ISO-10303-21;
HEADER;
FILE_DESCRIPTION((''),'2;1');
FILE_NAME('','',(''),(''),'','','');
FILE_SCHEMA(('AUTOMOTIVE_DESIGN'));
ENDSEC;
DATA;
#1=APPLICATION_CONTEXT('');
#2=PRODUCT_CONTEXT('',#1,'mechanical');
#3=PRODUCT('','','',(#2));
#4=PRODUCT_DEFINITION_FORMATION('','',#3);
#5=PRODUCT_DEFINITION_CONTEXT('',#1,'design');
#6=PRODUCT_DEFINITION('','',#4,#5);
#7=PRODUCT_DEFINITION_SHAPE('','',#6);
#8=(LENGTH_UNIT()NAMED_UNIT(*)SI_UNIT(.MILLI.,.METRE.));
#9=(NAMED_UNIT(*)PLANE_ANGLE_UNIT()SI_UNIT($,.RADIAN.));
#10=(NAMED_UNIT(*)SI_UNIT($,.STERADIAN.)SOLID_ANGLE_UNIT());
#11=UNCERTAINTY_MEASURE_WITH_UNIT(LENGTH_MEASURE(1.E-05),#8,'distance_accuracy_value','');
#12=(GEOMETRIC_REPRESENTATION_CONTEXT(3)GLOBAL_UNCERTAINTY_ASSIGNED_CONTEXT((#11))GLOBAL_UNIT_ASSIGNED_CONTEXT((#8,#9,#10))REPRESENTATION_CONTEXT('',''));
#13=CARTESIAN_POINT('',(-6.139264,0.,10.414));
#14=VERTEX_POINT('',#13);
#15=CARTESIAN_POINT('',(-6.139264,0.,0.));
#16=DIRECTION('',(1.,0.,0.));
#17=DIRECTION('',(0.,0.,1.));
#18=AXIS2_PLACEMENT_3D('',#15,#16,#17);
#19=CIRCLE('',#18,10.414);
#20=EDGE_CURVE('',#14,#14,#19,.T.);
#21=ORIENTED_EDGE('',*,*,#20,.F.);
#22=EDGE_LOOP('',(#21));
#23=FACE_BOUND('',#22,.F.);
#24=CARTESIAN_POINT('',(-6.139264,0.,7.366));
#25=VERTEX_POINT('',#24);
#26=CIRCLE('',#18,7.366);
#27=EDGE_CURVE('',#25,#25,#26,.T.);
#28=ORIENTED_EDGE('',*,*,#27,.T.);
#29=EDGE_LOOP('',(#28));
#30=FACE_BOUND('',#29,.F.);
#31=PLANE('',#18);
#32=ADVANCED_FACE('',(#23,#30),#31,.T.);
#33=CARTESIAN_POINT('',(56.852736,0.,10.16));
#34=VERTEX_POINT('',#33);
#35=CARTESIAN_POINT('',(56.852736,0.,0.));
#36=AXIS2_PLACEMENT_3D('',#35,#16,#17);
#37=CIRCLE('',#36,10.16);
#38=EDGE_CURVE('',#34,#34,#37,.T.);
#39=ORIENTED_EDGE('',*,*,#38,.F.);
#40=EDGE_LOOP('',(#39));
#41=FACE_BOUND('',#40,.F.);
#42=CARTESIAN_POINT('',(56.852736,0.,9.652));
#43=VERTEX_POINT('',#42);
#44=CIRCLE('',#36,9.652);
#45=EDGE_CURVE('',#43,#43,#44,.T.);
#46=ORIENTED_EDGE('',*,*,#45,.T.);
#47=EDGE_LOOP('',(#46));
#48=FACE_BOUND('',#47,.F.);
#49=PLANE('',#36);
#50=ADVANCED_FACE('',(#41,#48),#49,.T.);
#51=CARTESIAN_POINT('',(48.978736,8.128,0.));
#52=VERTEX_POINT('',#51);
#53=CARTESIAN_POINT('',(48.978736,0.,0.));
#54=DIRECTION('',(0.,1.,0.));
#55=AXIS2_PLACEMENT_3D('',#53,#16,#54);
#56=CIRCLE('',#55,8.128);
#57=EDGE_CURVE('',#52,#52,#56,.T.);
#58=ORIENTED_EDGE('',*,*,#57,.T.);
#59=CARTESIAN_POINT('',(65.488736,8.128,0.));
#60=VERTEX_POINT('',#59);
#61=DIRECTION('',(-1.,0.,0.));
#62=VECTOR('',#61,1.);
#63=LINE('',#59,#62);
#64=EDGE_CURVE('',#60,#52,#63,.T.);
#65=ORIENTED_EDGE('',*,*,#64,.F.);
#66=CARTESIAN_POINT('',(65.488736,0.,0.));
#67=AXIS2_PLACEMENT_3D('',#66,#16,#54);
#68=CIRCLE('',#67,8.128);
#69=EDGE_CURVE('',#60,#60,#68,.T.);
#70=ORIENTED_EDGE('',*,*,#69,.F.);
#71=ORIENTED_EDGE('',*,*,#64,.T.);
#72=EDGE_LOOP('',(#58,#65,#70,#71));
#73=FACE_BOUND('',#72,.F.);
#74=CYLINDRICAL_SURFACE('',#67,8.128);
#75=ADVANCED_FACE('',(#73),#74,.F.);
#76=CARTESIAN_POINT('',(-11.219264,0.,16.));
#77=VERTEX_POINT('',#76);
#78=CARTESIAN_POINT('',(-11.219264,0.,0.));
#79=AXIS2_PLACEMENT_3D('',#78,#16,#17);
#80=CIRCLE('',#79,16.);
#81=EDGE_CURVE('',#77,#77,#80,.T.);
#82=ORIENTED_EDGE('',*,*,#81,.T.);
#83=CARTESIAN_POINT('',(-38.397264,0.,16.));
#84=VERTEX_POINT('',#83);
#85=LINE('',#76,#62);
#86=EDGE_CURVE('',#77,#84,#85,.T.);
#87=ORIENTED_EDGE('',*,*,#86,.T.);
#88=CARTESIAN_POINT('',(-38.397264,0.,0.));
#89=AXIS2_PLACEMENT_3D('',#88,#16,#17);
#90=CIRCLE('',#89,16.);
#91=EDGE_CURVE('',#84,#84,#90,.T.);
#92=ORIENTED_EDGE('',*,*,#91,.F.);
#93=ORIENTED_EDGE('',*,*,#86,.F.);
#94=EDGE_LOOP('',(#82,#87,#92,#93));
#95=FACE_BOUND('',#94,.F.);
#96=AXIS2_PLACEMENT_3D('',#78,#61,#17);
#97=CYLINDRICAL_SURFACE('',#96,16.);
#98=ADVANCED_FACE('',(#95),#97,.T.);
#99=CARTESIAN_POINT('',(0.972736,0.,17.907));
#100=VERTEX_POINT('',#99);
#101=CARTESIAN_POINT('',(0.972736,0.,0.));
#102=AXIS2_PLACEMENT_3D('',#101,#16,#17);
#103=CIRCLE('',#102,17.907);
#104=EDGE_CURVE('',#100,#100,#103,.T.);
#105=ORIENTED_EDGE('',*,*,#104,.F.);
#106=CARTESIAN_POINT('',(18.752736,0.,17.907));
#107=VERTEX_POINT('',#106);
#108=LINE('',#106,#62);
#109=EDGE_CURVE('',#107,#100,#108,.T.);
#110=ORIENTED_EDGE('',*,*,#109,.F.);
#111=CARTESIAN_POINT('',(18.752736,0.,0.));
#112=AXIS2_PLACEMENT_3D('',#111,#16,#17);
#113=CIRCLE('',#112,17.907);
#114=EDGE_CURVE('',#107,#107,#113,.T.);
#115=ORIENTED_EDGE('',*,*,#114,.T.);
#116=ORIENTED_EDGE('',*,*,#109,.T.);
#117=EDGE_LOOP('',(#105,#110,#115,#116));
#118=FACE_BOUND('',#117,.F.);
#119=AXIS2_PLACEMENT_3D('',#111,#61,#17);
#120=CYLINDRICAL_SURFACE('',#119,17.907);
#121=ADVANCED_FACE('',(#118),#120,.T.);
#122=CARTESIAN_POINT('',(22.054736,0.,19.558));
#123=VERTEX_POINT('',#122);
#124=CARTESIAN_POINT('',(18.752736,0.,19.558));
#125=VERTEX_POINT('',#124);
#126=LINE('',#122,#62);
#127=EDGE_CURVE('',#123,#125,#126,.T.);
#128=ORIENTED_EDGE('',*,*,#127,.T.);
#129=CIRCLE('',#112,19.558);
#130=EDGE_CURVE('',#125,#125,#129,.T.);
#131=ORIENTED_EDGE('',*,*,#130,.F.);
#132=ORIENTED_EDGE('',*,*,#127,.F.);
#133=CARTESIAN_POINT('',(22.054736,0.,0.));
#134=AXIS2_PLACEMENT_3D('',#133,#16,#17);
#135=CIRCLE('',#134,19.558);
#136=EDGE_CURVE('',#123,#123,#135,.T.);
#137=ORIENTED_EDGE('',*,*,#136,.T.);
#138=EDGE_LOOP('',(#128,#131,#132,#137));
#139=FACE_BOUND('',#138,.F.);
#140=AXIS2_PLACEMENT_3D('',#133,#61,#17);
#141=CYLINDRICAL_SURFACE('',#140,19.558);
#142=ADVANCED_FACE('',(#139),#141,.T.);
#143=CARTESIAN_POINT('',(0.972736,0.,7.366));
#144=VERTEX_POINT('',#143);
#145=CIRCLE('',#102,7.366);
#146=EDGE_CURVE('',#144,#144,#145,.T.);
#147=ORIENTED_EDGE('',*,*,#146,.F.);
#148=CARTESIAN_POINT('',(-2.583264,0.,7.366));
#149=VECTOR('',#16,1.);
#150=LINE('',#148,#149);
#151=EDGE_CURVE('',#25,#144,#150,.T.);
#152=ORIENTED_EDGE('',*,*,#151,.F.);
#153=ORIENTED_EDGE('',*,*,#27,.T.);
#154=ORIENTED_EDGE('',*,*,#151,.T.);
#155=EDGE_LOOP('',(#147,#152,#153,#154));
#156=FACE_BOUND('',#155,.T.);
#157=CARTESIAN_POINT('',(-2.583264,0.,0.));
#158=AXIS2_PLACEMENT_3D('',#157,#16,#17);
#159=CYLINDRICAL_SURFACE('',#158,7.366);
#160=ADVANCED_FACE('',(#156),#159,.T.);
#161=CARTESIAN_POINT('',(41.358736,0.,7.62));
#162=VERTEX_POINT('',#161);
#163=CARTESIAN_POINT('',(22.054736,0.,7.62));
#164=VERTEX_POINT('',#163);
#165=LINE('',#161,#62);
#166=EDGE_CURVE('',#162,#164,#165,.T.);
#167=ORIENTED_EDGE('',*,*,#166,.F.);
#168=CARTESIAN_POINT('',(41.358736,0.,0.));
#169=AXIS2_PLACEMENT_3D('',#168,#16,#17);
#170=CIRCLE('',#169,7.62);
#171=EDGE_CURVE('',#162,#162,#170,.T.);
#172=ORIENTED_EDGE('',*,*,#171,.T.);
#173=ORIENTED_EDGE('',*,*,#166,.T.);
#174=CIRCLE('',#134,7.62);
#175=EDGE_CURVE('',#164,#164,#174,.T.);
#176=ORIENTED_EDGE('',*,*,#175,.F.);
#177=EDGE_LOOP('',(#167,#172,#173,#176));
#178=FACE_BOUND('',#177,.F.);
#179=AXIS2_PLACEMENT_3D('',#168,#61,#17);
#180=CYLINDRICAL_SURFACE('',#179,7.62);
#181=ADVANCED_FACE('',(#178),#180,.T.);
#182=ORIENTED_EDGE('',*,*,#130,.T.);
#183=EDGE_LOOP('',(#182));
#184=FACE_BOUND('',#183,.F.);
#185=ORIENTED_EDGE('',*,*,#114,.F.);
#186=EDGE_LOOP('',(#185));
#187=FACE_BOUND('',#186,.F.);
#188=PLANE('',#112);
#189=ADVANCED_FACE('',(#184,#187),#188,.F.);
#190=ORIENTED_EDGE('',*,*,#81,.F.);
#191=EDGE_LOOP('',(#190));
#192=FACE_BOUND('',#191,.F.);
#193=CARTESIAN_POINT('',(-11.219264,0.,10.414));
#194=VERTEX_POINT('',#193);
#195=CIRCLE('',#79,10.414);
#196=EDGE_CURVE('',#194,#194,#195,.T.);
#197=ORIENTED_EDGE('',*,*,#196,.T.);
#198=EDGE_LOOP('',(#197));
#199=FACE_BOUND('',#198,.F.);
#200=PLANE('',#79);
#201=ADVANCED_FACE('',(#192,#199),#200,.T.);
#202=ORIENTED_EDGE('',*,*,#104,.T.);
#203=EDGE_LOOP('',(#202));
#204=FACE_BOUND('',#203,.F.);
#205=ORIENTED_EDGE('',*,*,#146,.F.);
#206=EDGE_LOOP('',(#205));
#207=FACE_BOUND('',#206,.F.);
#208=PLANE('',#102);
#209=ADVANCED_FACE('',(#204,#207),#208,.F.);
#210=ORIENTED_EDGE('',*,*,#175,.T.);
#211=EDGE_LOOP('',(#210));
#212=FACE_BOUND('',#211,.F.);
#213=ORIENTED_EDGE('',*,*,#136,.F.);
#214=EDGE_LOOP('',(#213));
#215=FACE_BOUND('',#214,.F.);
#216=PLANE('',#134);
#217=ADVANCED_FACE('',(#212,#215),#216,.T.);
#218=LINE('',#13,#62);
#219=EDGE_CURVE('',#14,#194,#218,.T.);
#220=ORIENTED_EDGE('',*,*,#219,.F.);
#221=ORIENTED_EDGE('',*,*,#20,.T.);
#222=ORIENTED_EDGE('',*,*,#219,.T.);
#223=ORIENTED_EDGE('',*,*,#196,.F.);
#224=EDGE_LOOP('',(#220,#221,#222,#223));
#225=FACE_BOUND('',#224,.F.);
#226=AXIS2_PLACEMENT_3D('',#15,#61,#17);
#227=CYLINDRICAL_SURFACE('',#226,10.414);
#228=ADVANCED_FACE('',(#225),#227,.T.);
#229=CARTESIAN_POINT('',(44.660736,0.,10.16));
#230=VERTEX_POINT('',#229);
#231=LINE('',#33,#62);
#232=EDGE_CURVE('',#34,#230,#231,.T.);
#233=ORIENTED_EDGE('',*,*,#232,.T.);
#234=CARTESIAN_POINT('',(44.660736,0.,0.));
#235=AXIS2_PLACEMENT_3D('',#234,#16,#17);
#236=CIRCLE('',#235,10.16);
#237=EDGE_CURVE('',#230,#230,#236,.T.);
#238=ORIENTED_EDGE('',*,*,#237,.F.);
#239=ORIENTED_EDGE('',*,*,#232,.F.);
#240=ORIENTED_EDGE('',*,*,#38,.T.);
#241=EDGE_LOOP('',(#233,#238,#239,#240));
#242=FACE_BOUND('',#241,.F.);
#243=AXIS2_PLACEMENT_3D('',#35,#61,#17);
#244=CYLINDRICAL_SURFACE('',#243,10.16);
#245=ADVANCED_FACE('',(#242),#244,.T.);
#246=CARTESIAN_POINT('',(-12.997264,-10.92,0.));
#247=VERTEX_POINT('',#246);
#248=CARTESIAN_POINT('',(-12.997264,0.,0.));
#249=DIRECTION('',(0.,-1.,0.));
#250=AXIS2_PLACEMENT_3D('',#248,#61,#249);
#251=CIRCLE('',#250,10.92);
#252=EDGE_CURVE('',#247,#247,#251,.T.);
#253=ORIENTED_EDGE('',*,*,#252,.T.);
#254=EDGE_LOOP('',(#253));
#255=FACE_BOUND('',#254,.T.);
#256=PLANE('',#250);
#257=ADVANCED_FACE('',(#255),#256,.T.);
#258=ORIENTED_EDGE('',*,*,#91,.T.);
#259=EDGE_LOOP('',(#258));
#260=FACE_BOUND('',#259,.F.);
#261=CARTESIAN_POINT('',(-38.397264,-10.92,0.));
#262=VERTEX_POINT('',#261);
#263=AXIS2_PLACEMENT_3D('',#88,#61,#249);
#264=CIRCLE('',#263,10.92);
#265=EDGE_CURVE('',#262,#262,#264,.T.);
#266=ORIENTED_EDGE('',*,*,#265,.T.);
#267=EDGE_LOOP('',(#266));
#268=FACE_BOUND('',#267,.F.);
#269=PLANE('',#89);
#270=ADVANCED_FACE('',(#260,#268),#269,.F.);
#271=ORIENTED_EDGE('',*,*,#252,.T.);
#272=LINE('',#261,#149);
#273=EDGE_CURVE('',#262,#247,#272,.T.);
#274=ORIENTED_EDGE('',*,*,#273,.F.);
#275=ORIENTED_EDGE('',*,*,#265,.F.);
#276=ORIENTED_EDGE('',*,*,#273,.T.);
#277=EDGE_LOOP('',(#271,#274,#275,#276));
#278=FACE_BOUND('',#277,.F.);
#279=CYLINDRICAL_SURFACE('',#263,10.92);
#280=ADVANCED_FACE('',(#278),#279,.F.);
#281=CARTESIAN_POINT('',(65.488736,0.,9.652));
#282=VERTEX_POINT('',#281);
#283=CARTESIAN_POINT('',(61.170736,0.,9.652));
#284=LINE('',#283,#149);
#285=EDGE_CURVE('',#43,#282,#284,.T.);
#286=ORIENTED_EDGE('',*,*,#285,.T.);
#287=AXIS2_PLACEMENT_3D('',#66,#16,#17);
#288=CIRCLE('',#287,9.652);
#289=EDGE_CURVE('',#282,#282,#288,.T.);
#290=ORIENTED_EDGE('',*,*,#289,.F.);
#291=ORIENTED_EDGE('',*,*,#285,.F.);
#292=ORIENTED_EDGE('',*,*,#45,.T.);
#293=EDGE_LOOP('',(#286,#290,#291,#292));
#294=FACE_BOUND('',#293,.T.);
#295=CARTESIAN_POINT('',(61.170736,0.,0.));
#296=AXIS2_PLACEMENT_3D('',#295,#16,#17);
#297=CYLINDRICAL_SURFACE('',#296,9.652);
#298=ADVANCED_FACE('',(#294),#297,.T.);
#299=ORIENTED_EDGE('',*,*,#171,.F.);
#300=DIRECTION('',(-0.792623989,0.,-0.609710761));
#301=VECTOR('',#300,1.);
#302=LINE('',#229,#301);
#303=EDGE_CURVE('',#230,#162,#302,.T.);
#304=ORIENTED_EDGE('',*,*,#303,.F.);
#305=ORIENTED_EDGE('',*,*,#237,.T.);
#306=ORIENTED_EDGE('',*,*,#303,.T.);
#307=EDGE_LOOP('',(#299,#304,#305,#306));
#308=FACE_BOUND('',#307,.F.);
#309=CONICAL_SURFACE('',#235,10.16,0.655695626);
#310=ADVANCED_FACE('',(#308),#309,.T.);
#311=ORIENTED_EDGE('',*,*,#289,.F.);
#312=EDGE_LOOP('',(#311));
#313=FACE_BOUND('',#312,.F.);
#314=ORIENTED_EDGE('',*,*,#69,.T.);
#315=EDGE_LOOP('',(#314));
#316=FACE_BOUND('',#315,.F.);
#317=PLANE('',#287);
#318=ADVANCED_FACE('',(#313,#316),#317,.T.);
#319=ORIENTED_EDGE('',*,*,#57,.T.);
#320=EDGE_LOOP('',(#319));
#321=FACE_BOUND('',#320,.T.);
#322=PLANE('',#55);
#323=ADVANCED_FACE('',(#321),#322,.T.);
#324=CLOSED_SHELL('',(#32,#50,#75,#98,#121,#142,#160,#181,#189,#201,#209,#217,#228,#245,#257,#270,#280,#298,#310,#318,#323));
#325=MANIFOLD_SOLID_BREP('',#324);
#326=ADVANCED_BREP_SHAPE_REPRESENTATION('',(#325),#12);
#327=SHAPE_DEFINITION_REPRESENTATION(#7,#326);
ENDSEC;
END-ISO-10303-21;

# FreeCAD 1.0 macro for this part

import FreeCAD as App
import Part
import Sketcher
from FreeCAD import Vector
Q = App.Units.Quantity


def add_polygon(sketch, points):
    """Adds a closed chain of lines whose ends are joined by coincident constraints."""
    first, n = sketch.GeometryCount, len(points)
    for a, b in zip(points, points[1:] + points[:1]):
        sketch.addGeometry(Part.LineSegment(App.Vector(*a, 0), App.Vector(*b, 0)), False)
    for i in range(n):
        sketch.addConstraint(Sketcher.Constraint("Coincident", first + i, 2, first + (i + 1) % n, 1))

doc = App.newDocument("Part")
params = doc.addObject("Spreadsheet::Sheet", "Params")
for row, (alias, value) in enumerate([
    ("sketch1_width", "1.07 in"),
    ("revolution_angle", "360 deg"),
    ("sketch2_width", "0.2 in"),
    ("sketch2_height", "0.41 in"),
    ("revolution2_angle", "360 deg"),
    ("sketch3_width", "0.7 in"),
    ("sketch3_width2", "0.13 in"),
    ("sketch3_width3", "0.28 in"),
    ("sketch3_width4", "2.82 in"),
    ("sketch3_width5", "0.34 in"),
    ("revolution3_angle", "360 deg"),
    ("pocket1_length", "1 in"),
    ("sketch5_diameter", "0.64 in"),
    ("pocket2_length", "0.65 in"),
], start=1):
    params.set(f"A{row}", alias)
    params.set(f"B{row}", "=" + value)
    params.setAlias(f"B{row}", alias)

body = doc.addObject("PartDesign::Body", "Body")

# Sketch on XZ plane
sketch1 = body.newObject("Sketcher::SketchObject", "Sketch")
sketch1.AttachmentSupport = (doc.getObject("XZ_Plane"), [""])
sketch1.MapMode = "FlatFace"
add_polygon(sketch1, [(-38.397264, 16), (-38.397264, 0), (-11.219264, 0), (-11.219264, 16)])  # lines 0-3
sketch1.addConstraint(Sketcher.Constraint("Vertical", 0))
sketch1.addConstraint(Sketcher.Constraint("Horizontal", 1))
sketch1.addConstraint(Sketcher.Constraint("Vertical", 2))
sketch1.addConstraint(Sketcher.Constraint("Horizontal", 3))
sketch1.addConstraint(Sketcher.Constraint("PointOnObject", 0, 2, -1))
sketch1.addConstraint(Sketcher.Constraint("DistanceX", 1, 1, 1, 2, Q("1.07 in")))
sketch1.addConstraint(Sketcher.Constraint("DistanceY", 0, 2, 0, 1, Q("16 mm")))
sketch1.addConstraint(Sketcher.Constraint("DistanceX", 0, 2, -1, 1, Q("38.397264 mm")))
sketch1.setExpression("Constraints[9]", "Params.sketch1_width")
revolution = body.newObject("PartDesign::Revolution", "Revolution")
revolution.Profile = sketch1
revolution.ReferenceAxis = (sketch1, ["H_Axis"])
revolution.setExpression("Angle", "Params.revolution_angle")

# Sketch on XZ plane
sketch2 = body.newObject("Sketcher::SketchObject", "Sketch001")
sketch2.AttachmentSupport = (doc.getObject("XZ_Plane"), [""])
sketch2.MapMode = "FlatFace"
add_polygon(sketch2, [(-11.219264, 10.414), (-11.219264, 0), (-6.139264, 0), (-6.139264, 10.414)])  # lines 0-3
sketch2.addConstraint(Sketcher.Constraint("Vertical", 0))
sketch2.addConstraint(Sketcher.Constraint("Horizontal", 1))
sketch2.addConstraint(Sketcher.Constraint("Vertical", 2))
sketch2.addConstraint(Sketcher.Constraint("Horizontal", 3))
sketch2.addConstraint(Sketcher.Constraint("PointOnObject", 0, 2, -1))
sketch2.addConstraint(Sketcher.Constraint("DistanceX", 1, 1, 1, 2, Q("0.2 in")))
sketch2.addConstraint(Sketcher.Constraint("DistanceY", 0, 2, 0, 1, Q("0.41 in")))
sketch2.addConstraint(Sketcher.Constraint("DistanceX", 0, 2, -1, 1, Q("11.219264 mm")))
sketch2.setExpression("Constraints[9]", "Params.sketch2_width")
sketch2.setExpression("Constraints[10]", "Params.sketch2_height")
revolution2 = body.newObject("PartDesign::Revolution", "Revolution001")
revolution2.Profile = sketch2
revolution2.ReferenceAxis = (sketch2, ["H_Axis"])
revolution2.setExpression("Angle", "Params.revolution2_angle")

# Sketch on XZ plane
sketch3 = body.newObject("Sketcher::SketchObject", "Sketch002")
sketch3.AttachmentSupport = (doc.getObject("XZ_Plane"), [""])
sketch3.MapMode = "FlatFace"
add_polygon(sketch3, [(22.054736, 7.62), (22.054736, 19.558), (18.752736, 19.558), (18.752736, 17.907), (0.972736, 17.907), (0.972736, 7.366), (-6.139264, 7.366), (-6.139264, 0), (65.488736, 0), (65.488736, 9.652), (56.852736, 9.652), (56.852736, 10.16), (44.660736, 10.16), (41.358736, 7.62)])  # lines 0-13
sketch3.addConstraint(Sketcher.Constraint("Vertical", 0))
sketch3.addConstraint(Sketcher.Constraint("Horizontal", 1))
sketch3.addConstraint(Sketcher.Constraint("Vertical", 2))
sketch3.addConstraint(Sketcher.Constraint("Horizontal", 3))
sketch3.addConstraint(Sketcher.Constraint("Vertical", 4))
sketch3.addConstraint(Sketcher.Constraint("Horizontal", 5))
sketch3.addConstraint(Sketcher.Constraint("Vertical", 6))
sketch3.addConstraint(Sketcher.Constraint("Horizontal", 7))
sketch3.addConstraint(Sketcher.Constraint("Vertical", 8))
sketch3.addConstraint(Sketcher.Constraint("Horizontal", 9))
sketch3.addConstraint(Sketcher.Constraint("Vertical", 10))
sketch3.addConstraint(Sketcher.Constraint("Horizontal", 11))
sketch3.addConstraint(Sketcher.Constraint("Horizontal", 13))
sketch3.addConstraint(Sketcher.Constraint("PointOnObject", 6, 2, -1))
sketch3.addConstraint(Sketcher.Constraint("DistanceX", 3, 2, 3, 1, Q("0.7 in")))
sketch3.addConstraint(Sketcher.Constraint("DistanceX", 1, 2, 1, 1, Q("0.13 in")))
sketch3.addConstraint(Sketcher.Constraint("DistanceX", 5, 2, 5, 1, Q("0.28 in")))
sketch3.addConstraint(Sketcher.Constraint("DistanceX", 7, 1, 7, 2, Q("2.82 in")))
sketch3.addConstraint(Sketcher.Constraint("DistanceX", 9, 2, 9, 1, Q("0.34 in")))
sketch3.addConstraint(Sketcher.Constraint("DistanceX", 11, 2, 11, 1, Q("0.48 in")))
sketch3.addConstraint(Sketcher.Constraint("DistanceX", 13, 2, 13, 1, Q("0.76 in")))
sketch3.addConstraint(Sketcher.Constraint("DistanceY", 0, 1, 0, 2, Q("0.47 in")))
sketch3.addConstraint(Sketcher.Constraint("DistanceY", 6, 2, 6, 1, Q("0.29 in")))
sketch3.addConstraint(Sketcher.Constraint("DistanceY", 8, 1, 8, 2, Q("0.38 in")))
sketch3.addConstraint(Sketcher.Constraint("DistanceY", 10, 1, 10, 2, Q("0.02 in")))
sketch3.addConstraint(Sketcher.Constraint("DistanceY", -1, 1, 12, 2, Q("0.3 in")))
sketch3.addConstraint(Sketcher.Constraint("DistanceY", 2, 2, 2, 1, Q("0.065 in")))
sketch3.addConstraint(Sketcher.Constraint("DistanceX", -1, 1, 0, 2, Q("22.054736 mm")))
sketch3.setExpression("Constraints[28]", "Params.sketch3_width")
sketch3.setExpression("Constraints[29]", "Params.sketch3_width2")
sketch3.setExpression("Constraints[30]", "Params.sketch3_width3")
sketch3.setExpression("Constraints[31]", "Params.sketch3_width4")
sketch3.setExpression("Constraints[32]", "Params.sketch3_width5")
revolution3 = body.newObject("PartDesign::Revolution", "Revolution002")
revolution3.Profile = sketch3
revolution3.ReferenceAxis = (sketch3, ["H_Axis"])
revolution3.setExpression("Angle", "Params.revolution3_angle")

# Sketch on YZ plane
sketch4 = body.newObject("Sketcher::SketchObject", "Sketch003")
sketch4.AttachmentSupport = (doc.getObject("YZ_Plane"), [""])
sketch4.MapMode = "FlatFace"
sketch4.AttachmentOffset = App.Placement(Vector(0, 0, -38.397264), App.Rotation())
sketch4.addGeometry(Part.Circle(Vector(0, 0, 0), Vector(0, 0, 1), 10.92), False)
sketch4.addConstraint(Sketcher.Constraint("Coincident", 0, 3, -1, 1))
sketch4.addConstraint(Sketcher.Constraint("Diameter", 0, Q("21.84 mm")))
pocket1 = body.newObject("PartDesign::Pocket", "Pocket")
pocket1.Profile = sketch4
pocket1.setExpression("Length", "Params.pocket1_length")
pocket1.Reversed = True

# Sketch on YZ plane
sketch5 = body.newObject("Sketcher::SketchObject", "Sketch004")
sketch5.AttachmentSupport = (doc.getObject("YZ_Plane"), [""])
sketch5.MapMode = "FlatFace"
sketch5.AttachmentOffset = App.Placement(Vector(0, 0, 65.488736), App.Rotation())
sketch5.addGeometry(Part.Circle(Vector(0, 0, 0), Vector(0, 0, 1), 8.128), False)
sketch5.addConstraint(Sketcher.Constraint("Coincident", 0, 3, -1, 1))
sketch5.addConstraint(Sketcher.Constraint("Diameter", 0, Q("0.64 in")))
sketch5.setExpression("Constraints[1]", "Params.sketch5_diameter")
pocket2 = body.newObject("PartDesign::Pocket", "Pocket001")
pocket2.Profile = sketch5
pocket2.setExpression("Length", "Params.pocket2_length")

doc.recompute()
